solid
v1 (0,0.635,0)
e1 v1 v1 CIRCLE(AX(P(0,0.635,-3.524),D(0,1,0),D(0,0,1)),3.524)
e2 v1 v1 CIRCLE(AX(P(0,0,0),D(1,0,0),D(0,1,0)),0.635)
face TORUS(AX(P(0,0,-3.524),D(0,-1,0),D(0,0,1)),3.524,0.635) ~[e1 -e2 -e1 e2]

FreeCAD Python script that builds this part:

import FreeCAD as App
import Part
import Sketcher
from FreeCAD import Vector
Q = App.Units.Quantity

doc = App.newDocument("Part")
body = doc.addObject("PartDesign::Body", "Body")

# Sketch on YZ plane
sketch1 = body.newObject("Sketcher::SketchObject", "Sketch")
sketch1.AttachmentSupport = (doc.getObject("YZ_Plane"), [""])
sketch1.MapMode = "FlatFace"
sketch1.addGeometry(Part.Circle(Vector(0, 0, 0), Vector(0, 0, 1), 0.6), False)
sketch1.addGeometry(Part.LineSegment(Vector(0, -3.5, 0), Vector(10, -3.5, 0)), True)  # axis
sketch1.addConstraint([
    Sketcher.Constraint("Horizontal", 1),
    Sketcher.Constraint("Coincident", 0, 3, -1, 1),
    Sketcher.Constraint("PointOnObject", 1, 1, -2),
    Sketcher.Constraint("Diameter", 0, Q("0.05 in")),
    Sketcher.Constraint("DistanceY", 1, 1, -1, 1, Q("3.524 mm")),
    Sketcher.Constraint("DistanceX", 1, 1, 1, 2, Q("0.3937 in")),
])
revolution = body.newObject("PartDesign::Revolution", "Revolution")
revolution.Profile = sketch1
revolution.ReferenceAxis = (sketch1, ["Axis0"])
revolution.Angle = 360

doc.recompute()
